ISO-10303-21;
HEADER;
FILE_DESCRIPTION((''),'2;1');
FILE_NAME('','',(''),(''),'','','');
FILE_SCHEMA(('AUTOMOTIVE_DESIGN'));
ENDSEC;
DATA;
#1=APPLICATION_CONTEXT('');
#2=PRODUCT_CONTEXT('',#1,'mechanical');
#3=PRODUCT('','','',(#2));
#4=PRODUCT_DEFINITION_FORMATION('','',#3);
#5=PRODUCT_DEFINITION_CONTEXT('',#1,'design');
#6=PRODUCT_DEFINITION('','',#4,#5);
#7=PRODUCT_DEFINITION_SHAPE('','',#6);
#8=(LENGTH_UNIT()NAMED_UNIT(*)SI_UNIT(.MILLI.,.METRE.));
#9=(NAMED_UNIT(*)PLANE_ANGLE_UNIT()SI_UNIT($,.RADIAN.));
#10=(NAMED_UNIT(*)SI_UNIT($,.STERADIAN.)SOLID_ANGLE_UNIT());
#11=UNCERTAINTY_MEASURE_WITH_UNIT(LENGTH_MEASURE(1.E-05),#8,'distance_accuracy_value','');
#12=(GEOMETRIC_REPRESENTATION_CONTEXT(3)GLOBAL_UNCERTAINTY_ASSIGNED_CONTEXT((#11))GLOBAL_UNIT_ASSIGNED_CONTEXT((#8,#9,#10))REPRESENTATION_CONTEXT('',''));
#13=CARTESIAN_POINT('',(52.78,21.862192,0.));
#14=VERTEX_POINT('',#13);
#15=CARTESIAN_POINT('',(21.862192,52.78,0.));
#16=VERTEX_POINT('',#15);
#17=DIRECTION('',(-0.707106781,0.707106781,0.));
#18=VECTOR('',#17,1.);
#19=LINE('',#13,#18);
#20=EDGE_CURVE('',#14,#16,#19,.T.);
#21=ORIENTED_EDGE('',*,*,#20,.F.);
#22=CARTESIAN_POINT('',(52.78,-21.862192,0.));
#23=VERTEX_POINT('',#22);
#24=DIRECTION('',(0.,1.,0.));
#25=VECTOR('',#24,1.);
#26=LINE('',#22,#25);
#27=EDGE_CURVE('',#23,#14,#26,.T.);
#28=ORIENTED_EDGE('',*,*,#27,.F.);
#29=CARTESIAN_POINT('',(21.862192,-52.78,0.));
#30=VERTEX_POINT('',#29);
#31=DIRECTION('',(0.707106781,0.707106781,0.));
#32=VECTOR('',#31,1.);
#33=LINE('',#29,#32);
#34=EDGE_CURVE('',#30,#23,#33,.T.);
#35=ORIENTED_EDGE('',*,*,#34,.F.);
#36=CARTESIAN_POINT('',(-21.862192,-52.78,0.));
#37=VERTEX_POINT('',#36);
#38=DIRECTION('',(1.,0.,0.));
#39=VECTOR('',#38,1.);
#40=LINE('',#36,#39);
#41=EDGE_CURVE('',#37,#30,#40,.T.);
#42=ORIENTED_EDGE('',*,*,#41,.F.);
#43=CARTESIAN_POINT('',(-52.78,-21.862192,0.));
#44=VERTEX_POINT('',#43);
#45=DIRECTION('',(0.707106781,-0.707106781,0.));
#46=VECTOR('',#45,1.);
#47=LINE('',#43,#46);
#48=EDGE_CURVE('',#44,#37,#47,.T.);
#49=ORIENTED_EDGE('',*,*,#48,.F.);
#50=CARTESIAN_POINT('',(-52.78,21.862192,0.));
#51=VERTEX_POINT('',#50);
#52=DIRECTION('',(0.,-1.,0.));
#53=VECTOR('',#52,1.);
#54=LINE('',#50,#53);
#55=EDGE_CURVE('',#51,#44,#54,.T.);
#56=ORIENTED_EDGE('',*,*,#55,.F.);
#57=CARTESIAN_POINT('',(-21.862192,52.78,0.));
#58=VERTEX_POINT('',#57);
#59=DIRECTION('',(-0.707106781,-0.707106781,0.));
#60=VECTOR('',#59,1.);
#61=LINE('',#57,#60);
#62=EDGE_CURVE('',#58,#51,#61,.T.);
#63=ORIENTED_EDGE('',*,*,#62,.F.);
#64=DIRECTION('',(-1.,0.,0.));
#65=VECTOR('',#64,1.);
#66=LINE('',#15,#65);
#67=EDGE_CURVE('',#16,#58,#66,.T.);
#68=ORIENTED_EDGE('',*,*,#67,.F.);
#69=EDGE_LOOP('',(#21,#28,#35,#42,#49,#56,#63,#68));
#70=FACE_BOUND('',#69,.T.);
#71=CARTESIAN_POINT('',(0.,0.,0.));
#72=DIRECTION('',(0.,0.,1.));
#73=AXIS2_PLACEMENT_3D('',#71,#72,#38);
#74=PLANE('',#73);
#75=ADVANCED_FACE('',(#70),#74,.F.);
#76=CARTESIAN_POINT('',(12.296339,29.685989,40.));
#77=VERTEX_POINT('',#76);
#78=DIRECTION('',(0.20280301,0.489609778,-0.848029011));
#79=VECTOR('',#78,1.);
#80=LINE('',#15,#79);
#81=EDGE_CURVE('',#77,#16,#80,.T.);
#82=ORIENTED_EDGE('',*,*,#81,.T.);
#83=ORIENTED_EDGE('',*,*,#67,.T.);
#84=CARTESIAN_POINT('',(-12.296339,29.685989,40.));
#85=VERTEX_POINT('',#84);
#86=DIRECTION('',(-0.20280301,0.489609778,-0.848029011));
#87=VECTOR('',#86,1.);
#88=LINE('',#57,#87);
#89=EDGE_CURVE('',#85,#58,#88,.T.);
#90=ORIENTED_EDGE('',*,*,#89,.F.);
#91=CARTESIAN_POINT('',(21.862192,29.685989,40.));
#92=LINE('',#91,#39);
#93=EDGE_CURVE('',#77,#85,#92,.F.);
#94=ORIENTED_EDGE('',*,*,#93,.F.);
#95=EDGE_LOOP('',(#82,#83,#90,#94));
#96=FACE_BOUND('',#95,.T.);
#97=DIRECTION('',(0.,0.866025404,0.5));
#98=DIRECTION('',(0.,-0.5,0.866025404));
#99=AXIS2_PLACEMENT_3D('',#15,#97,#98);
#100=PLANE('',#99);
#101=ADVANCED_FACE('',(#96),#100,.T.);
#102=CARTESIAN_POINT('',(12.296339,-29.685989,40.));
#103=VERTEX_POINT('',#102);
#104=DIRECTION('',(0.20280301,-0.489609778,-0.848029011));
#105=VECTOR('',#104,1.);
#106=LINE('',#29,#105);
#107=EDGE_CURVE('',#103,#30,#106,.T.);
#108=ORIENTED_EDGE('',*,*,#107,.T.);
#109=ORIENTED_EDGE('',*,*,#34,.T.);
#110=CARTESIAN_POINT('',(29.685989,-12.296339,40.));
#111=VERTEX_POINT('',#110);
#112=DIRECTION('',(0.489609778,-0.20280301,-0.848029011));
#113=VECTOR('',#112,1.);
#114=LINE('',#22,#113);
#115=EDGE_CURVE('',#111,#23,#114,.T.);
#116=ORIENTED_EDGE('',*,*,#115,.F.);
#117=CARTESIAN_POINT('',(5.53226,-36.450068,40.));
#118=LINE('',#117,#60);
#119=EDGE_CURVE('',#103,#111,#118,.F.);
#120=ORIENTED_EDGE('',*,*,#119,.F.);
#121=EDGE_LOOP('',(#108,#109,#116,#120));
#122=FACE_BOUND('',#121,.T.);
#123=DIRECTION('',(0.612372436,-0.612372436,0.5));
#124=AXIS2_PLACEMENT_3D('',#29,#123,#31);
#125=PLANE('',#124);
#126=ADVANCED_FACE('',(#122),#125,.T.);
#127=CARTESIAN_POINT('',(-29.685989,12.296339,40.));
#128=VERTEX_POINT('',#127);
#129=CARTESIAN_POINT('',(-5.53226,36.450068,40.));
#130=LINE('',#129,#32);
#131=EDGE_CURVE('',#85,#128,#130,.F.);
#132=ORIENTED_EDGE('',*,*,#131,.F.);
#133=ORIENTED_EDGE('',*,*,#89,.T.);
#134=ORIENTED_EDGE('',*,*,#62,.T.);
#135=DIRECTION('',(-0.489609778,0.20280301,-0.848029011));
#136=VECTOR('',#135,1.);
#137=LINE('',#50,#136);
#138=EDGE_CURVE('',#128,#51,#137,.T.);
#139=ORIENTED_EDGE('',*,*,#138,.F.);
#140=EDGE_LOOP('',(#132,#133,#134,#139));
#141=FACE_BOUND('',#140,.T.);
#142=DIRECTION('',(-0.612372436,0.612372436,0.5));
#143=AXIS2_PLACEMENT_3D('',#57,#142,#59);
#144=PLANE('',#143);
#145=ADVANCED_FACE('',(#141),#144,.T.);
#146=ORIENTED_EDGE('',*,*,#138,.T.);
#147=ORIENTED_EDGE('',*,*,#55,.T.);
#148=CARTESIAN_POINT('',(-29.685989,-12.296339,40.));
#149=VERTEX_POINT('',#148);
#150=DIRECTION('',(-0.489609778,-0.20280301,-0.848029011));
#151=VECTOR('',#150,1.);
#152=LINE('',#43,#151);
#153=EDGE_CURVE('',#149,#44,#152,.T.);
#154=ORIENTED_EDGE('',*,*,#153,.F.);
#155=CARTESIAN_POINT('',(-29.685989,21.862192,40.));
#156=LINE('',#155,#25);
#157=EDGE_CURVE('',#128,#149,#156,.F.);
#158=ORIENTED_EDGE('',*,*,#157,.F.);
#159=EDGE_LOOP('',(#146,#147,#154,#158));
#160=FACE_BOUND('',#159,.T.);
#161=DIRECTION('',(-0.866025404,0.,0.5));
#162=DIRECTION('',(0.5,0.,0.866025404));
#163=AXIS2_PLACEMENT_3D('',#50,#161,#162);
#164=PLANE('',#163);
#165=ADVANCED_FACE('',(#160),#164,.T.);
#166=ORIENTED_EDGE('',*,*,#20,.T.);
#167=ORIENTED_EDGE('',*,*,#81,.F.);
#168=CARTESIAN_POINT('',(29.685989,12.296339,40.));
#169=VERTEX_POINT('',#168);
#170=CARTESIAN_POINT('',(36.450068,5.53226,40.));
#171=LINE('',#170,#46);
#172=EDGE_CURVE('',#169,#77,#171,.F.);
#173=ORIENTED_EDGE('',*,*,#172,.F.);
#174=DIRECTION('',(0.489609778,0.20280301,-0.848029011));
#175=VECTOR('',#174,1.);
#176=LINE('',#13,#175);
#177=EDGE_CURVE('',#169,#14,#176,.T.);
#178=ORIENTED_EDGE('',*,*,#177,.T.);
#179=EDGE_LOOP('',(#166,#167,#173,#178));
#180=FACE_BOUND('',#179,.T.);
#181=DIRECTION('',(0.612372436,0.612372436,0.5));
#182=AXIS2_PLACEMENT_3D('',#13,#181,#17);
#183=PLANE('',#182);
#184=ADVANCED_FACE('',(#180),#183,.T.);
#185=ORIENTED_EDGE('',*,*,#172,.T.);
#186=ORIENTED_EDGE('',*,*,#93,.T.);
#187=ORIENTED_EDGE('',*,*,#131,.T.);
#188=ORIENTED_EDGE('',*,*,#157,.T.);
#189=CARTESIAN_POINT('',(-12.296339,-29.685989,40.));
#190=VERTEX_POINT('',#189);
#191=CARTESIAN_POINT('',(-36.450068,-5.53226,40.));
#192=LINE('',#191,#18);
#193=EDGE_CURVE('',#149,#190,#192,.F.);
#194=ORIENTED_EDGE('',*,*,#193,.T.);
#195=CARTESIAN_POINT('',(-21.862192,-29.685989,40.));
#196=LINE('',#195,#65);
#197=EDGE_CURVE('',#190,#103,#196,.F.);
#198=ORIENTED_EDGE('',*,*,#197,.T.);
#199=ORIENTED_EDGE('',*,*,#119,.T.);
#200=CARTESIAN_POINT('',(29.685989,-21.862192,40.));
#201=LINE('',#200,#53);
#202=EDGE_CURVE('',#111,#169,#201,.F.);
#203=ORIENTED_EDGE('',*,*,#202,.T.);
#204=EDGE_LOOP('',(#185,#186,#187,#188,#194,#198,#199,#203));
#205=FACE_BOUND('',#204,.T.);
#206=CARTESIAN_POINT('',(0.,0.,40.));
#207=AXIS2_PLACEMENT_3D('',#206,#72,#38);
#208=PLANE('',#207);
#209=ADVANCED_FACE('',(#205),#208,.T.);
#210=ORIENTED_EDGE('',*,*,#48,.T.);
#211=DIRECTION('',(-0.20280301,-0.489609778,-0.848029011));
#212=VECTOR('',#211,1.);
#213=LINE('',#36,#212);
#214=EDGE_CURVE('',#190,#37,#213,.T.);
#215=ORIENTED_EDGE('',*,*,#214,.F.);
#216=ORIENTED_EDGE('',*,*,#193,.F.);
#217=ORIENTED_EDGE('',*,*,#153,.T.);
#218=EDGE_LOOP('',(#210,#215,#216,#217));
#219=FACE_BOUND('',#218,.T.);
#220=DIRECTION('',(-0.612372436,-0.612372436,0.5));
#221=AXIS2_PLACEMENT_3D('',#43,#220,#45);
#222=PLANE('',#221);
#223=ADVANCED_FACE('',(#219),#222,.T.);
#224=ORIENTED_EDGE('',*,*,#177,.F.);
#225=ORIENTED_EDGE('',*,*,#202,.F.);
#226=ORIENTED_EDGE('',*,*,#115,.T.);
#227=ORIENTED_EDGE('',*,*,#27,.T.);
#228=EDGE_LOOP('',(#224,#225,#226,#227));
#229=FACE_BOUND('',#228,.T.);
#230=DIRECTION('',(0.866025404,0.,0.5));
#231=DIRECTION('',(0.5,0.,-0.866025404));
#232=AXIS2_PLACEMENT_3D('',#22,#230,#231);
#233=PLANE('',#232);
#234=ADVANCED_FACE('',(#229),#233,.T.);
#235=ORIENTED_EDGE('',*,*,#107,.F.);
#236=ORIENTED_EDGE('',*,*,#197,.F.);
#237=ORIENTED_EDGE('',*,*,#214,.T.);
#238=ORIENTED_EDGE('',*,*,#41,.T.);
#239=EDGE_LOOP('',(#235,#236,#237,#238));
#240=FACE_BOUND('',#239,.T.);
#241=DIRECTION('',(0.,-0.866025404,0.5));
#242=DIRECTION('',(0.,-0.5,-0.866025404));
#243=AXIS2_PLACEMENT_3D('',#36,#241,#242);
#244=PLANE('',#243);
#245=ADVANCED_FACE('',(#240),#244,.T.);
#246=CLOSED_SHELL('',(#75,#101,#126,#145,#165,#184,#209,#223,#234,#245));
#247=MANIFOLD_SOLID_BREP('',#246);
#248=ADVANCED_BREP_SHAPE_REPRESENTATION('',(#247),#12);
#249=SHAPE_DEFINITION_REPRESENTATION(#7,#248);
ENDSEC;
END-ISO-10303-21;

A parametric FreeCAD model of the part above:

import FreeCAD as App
import Part
import Sketcher

V = App.Vector
Q = App.Units.Quantity

doc = App.newDocument("Part")
body = doc.addObject("PartDesign::Body", "Body")

sketch1 = body.newObject("Sketcher::SketchObject", "Sketch")
sketch1.AttachmentSupport = (doc.getObject("XY_Plane"), [""])
sketch1.MapMode = "FlatFace"
sketch1.addGeometry(Part.LineSegment(V(52.78, -21.862192, 0), V(52.78, 21.862192, 0)), False)
sketch1.addGeometry(Part.LineSegment(V(52.78, 21.862192, 0), V(21.862192, 52.78, 0)), False)
sketch1.addGeometry(Part.LineSegment(V(21.862192, 52.78, 0), V(-21.862192, 52.78, 0)), False)
sketch1.addGeometry(Part.LineSegment(V(-21.862192, 52.78, 0), V(-52.78, 21.862192, 0)), False)
sketch1.addGeometry(Part.LineSegment(V(-52.78, 21.862192, 0), V(-52.78, -21.862192, 0)), False)
sketch1.addGeometry(Part.LineSegment(V(-52.78, -21.862192, 0), V(-21.862192, -52.78, 0)), False)
sketch1.addGeometry(Part.LineSegment(V(-21.862192, -52.78, 0), V(21.862192, -52.78, 0)), False)
sketch1.addGeometry(Part.LineSegment(V(21.862192, -52.78, 0), V(52.78, -21.862192, 0)), False)
sketch1.addConstraint(Sketcher.Constraint("Coincident", 0, 2, 1, 1))
sketch1.addConstraint(Sketcher.Constraint("Coincident", 1, 2, 2, 1))
sketch1.addConstraint(Sketcher.Constraint("Coincident", 2, 2, 3, 1))
sketch1.addConstraint(Sketcher.Constraint("Coincident", 3, 2, 4, 1))
sketch1.addConstraint(Sketcher.Constraint("Coincident", 4, 2, 5, 1))
sketch1.addConstraint(Sketcher.Constraint("Coincident", 5, 2, 6, 1))
sketch1.addConstraint(Sketcher.Constraint("Coincident", 6, 2, 7, 1))
sketch1.addConstraint(Sketcher.Constraint("Coincident", 7, 2, 0, 1))
sketch1.addConstraint(Sketcher.Constraint("Vertical", 0))
sketch1.addConstraint(Sketcher.Constraint("Horizontal", 2))
sketch1.addConstraint(Sketcher.Constraint("Vertical", 4))
sketch1.addConstraint(Sketcher.Constraint("Horizontal", 6))
sketch1.addConstraint(Sketcher.Constraint("Symmetric", 0, 2, 4, 2, -1, 1))
sketch1.addConstraint(Sketcher.Constraint("Symmetric", 1, 2, 5, 2, -1, 1))
sketch1.addConstraint(Sketcher.Constraint("Perpendicular", 1, 3))
sketch1.addConstraint(Sketcher.Constraint("Perpendicular", 5, 7))
sketch1.addConstraint(Sketcher.Constraint("Horizontal", 0, 2, 3, 2))
sketch1.addConstraint(Sketcher.Constraint("Horizontal", 4, 2, 7, 2))
sketch1.addConstraint(Sketcher.Constraint("Vertical", 2, 2, 5, 2))
sketch1.addConstraint(Sketcher.Constraint("Equal", 6, 0))
sketch1.addConstraint(Sketcher.Constraint("DistanceX", -1, 1, 0, 2, Q("52.78 mm")))
sketch1.addConstraint(Sketcher.Constraint("DistanceX", 2, 2, 2, 1, Q("43.724384 mm")))
pad1 = body.newObject("PartDesign::Pad", "Pad")
pad1.Profile = sketch1
pad1.Length = 40
pad1.TaperAngle = -30

doc.recompute()
